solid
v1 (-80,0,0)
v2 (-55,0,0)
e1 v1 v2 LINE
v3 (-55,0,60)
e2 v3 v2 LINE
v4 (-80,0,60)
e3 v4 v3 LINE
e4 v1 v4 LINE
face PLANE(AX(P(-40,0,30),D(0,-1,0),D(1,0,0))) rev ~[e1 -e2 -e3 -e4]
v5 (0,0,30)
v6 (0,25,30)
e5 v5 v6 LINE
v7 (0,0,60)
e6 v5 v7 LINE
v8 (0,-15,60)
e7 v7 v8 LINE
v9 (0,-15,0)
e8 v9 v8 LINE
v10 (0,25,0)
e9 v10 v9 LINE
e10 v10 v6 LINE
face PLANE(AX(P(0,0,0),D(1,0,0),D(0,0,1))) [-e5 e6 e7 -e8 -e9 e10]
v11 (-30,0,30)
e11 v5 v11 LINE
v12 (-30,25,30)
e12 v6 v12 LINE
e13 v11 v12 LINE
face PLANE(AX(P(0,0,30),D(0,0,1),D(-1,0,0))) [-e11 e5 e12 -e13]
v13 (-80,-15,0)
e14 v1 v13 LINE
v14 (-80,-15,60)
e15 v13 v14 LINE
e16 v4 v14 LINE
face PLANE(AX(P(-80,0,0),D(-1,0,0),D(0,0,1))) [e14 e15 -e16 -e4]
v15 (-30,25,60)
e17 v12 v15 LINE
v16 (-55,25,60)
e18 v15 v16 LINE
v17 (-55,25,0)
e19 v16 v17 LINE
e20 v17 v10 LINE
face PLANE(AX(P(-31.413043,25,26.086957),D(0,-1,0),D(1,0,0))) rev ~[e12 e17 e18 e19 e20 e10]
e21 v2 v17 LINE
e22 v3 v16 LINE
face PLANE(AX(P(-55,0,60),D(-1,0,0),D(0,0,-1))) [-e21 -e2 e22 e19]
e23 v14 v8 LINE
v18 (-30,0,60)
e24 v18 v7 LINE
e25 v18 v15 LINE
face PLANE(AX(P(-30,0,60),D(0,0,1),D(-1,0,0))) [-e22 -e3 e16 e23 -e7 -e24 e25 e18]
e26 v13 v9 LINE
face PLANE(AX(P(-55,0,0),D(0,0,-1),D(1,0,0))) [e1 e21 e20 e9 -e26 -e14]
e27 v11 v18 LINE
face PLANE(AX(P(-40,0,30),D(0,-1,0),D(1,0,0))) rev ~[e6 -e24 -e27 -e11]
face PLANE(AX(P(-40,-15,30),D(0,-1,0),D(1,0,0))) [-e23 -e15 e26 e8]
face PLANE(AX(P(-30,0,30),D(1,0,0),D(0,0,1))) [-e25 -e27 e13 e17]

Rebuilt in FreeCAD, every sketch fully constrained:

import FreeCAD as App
import Part
import Sketcher


def add_polygon(sketch, points):
    """Adds a closed chain of lines whose ends are joined by coincident constraints."""
    first, n = sketch.GeometryCount, len(points)
    for a, b in zip(points, points[1:] + points[:1]):
        sketch.addGeometry(Part.LineSegment(App.Vector(*a, 0), App.Vector(*b, 0)), False)
    for i in range(n):
        sketch.addConstraint(Sketcher.Constraint("Coincident", first + i, 2, first + (i + 1) % n, 1))

doc = App.newDocument("Part")
params = doc.addObject("Spreadsheet::Sheet", "Params")
for row, (alias, value) in enumerate([
    ("sketch1_width", "80 mm"),
    ("sketch1_height", "60 mm"),
    ("pad1_length", "15 mm"),
    ("sketch2_width", "55 mm"),
    ("sketch2_width2", "30 mm"),
    ("pad2_length", "25 mm"),
], start=1):
    params.set(f"A{row}", alias)
    params.set(f"B{row}", "=" + value)
    params.setAlias(f"B{row}", alias)

body = doc.addObject("PartDesign::Body", "Body")

# Sketch on XZ plane
sketch1 = body.newObject("Sketcher::SketchObject", "Sketch")
sketch1.AttachmentSupport = (doc.getObject("XZ_Plane"), [""])
sketch1.MapMode = "FlatFace"
add_polygon(sketch1, [(-80, 60), (-80, 0), (0, 0), (0, 60)])  # lines 0-3
sketch1.addConstraint(Sketcher.Constraint("Vertical", 0))
sketch1.addConstraint(Sketcher.Constraint("Horizontal", 1))
sketch1.addConstraint(Sketcher.Constraint("Vertical", 2))
sketch1.addConstraint(Sketcher.Constraint("Horizontal", 3))
sketch1.addConstraint(Sketcher.Constraint("Coincident", 1, 2, -1, 1))
sketch1.addConstraint(Sketcher.Constraint("DistanceX", 1, 1, 1, 2, 80.0))
sketch1.addConstraint(Sketcher.Constraint("DistanceY", 0, 2, 0, 1, 60.0))
sketch1.setExpression("Constraints[9]", "Params.sketch1_width")
sketch1.setExpression("Constraints[10]", "Params.sketch1_height")
pad1 = body.newObject("PartDesign::Pad", "Pad")
pad1.Profile = sketch1
pad1.setExpression("Length", "Params.pad1_length")

# Sketch on XZ plane
sketch2 = body.newObject("Sketcher::SketchObject", "Sketch001")
sketch2.AttachmentSupport = (doc.getObject("XZ_Plane"), [""])
sketch2.MapMode = "FlatFace"
add_polygon(sketch2, [(-55, 0), (0, 0), (0, 30), (-30, 30), (-30, 60), (-55, 60)])  # lines 0-5
sketch2.addConstraint(Sketcher.Constraint("Horizontal", 0))
sketch2.addConstraint(Sketcher.Constraint("Vertical", 1))
sketch2.addConstraint(Sketcher.Constraint("Horizontal", 2))
sketch2.addConstraint(Sketcher.Constraint("Vertical", 3))
sketch2.addConstraint(Sketcher.Constraint("Horizontal", 4))
sketch2.addConstraint(Sketcher.Constraint("Vertical", 5))
sketch2.addConstraint(Sketcher.Constraint("Coincident", 0, 2, -1, 1))
sketch2.addConstraint(Sketcher.Constraint("Equal", 2, 1))
sketch2.addConstraint(Sketcher.Constraint("Equal", 1, 3))
sketch2.addConstraint(Sketcher.Constraint("DistanceX", 0, 1, 0, 2, 55.0))
sketch2.addConstraint(Sketcher.Constraint("DistanceX", 2, 2, 2, 1, 30.0))
sketch2.setExpression("Constraints[15]", "Params.sketch2_width")
sketch2.setExpression("Constraints[16]", "Params.sketch2_width2")
pad2 = body.newObject("PartDesign::Pad", "Pad001")
pad2.Profile = sketch2
pad2.setExpression("Length", "Params.pad2_length")
pad2.Reversed = True

doc.recompute()
